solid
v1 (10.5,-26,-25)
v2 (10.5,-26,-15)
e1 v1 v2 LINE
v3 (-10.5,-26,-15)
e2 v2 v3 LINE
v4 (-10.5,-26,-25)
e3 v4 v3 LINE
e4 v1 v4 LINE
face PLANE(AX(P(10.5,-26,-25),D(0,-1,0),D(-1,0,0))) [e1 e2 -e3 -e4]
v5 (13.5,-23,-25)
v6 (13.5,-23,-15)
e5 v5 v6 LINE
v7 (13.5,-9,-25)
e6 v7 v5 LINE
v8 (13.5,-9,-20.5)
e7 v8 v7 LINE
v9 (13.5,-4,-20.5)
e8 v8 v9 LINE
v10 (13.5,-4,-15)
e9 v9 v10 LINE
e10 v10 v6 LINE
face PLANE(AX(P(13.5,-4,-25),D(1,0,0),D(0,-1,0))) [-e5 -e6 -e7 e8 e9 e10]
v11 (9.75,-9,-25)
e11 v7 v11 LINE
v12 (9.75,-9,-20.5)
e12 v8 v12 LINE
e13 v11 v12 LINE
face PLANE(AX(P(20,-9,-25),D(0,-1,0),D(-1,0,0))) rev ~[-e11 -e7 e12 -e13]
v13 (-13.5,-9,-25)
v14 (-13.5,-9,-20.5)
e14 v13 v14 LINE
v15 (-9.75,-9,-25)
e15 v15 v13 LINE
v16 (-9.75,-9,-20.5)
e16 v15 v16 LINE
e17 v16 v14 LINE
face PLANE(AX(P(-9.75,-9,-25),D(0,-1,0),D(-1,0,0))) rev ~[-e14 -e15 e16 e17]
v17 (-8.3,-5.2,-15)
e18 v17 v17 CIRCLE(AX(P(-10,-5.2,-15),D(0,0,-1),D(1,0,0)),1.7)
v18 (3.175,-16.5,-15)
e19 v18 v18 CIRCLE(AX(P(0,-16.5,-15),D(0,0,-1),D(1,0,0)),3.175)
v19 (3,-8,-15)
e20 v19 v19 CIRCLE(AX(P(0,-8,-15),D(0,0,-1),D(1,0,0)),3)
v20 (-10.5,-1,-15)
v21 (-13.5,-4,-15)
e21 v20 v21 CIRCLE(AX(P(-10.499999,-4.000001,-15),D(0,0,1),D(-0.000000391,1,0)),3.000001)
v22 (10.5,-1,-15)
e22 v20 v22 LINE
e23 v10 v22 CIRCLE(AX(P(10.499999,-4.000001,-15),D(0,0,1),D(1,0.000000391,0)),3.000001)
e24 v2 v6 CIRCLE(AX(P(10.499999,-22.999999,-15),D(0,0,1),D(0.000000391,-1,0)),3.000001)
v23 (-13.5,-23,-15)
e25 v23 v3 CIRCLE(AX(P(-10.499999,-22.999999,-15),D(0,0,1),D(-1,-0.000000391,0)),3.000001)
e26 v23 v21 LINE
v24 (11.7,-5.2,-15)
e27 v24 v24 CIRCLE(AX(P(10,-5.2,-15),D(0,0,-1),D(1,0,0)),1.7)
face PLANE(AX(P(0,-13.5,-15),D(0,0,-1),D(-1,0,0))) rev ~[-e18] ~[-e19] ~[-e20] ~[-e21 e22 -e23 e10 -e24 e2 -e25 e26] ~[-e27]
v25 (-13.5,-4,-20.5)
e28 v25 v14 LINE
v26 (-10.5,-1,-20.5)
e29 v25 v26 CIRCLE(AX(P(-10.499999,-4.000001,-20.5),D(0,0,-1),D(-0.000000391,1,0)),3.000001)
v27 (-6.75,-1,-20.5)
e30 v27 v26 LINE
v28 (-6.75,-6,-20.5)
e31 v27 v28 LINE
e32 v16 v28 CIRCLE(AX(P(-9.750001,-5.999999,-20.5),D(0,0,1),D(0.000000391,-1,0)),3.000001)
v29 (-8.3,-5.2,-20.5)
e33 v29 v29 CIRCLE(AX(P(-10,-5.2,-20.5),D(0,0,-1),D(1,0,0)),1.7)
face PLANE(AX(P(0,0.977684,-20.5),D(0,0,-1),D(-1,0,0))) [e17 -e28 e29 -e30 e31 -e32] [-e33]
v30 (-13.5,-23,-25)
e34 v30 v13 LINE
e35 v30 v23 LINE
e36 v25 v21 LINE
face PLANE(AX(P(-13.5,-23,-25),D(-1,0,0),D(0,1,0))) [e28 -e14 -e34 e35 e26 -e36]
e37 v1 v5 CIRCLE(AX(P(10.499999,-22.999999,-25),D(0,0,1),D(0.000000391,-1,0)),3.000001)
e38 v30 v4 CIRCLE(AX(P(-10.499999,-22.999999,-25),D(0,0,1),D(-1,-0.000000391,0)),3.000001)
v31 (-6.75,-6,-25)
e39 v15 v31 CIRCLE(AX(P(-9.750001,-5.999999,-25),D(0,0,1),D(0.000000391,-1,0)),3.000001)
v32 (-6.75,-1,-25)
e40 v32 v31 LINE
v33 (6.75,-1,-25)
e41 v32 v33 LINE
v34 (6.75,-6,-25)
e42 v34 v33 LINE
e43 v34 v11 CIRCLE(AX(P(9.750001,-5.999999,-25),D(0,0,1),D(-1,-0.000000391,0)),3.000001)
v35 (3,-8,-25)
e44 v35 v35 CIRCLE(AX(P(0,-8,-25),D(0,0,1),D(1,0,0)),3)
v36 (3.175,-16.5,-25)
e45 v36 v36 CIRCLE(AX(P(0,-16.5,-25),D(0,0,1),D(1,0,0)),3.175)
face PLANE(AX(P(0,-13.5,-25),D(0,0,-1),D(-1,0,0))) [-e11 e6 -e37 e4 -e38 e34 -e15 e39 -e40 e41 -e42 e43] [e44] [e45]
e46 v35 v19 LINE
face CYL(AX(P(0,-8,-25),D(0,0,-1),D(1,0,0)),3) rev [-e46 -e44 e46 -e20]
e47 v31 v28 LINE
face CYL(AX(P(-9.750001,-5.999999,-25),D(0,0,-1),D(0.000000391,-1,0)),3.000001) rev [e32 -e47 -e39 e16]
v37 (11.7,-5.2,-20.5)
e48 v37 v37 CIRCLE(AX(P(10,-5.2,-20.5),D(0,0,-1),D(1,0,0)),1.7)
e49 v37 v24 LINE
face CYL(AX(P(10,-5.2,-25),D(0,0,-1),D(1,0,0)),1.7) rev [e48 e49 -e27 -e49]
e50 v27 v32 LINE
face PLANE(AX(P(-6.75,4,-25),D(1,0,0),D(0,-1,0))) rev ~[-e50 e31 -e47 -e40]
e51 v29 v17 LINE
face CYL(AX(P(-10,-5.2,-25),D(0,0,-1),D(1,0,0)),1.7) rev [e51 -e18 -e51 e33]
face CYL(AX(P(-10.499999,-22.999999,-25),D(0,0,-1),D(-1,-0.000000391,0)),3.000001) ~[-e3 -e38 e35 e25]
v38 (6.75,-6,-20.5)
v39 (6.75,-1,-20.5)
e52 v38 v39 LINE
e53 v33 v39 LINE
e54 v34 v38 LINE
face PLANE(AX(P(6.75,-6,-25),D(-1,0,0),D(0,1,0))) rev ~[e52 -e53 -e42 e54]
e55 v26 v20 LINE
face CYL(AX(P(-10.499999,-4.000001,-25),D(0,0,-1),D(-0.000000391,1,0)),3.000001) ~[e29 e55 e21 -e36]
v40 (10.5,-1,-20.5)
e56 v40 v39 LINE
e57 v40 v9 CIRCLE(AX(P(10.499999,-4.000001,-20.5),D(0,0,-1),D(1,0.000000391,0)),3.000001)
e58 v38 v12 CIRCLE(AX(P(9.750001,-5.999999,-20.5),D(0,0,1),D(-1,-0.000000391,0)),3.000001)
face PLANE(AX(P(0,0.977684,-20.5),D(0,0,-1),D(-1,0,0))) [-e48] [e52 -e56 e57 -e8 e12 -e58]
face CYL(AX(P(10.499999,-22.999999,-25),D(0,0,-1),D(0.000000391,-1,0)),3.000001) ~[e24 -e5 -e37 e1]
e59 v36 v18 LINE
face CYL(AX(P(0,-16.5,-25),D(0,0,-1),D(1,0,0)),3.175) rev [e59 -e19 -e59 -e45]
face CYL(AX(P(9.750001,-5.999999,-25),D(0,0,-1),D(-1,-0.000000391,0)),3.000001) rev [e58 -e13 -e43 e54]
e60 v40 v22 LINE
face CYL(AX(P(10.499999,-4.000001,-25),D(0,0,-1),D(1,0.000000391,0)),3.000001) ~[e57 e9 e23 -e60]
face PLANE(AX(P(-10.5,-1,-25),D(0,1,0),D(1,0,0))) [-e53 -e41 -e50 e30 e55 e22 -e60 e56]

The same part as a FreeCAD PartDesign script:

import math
import FreeCAD as App
import Part
import Sketcher

doc = App.newDocument("Part")
body = doc.addObject("PartDesign::Body", "Body")

# Sketch on XY plane
sketch1 = body.newObject("Sketcher::SketchObject", "Sketch")
sketch1.AttachmentSupport = (doc.getObject("XY_Plane"), [""])
sketch1.MapMode = "FlatFace"
sketch1.addGeometry([
    Part.LineSegment(App.Vector(10.5, 0, 0), App.Vector(-10.5, 0, 0)),  # 0
    Part.ArcOfCircle(Part.Circle(App.Vector(-10.5, -3, 0), App.Vector(0, 0, 1), 3), math.radians(90), math.radians(180)),  # 1
    Part.LineSegment(App.Vector(-13.5, -3, 0), App.Vector(-13.5, -22, 0)),  # 2
    Part.ArcOfCircle(Part.Circle(App.Vector(-10.5, -22, 0), App.Vector(0, 0, 1), 3), math.radians(-180), math.radians(-90)),  # 3
    Part.LineSegment(App.Vector(-10.5, -25, 0), App.Vector(10.5, -25, 0)),  # 4
    Part.ArcOfCircle(Part.Circle(App.Vector(10.5, -22, 0), App.Vector(0, 0, 1), 3), math.radians(-90), math.radians(0)),  # 5
    Part.LineSegment(App.Vector(13.5, -22, 0), App.Vector(13.5, -3, 0)),  # 6
    Part.ArcOfCircle(Part.Circle(App.Vector(10.5, -3, 0), App.Vector(0, 0, 1), 3), math.radians(0), math.radians(90)),  # 7
], False)
sketch1.addConstraint([
    Sketcher.Constraint("Tangent", 0, 2, 1, 1),
    Sketcher.Constraint("Tangent", 1, 2, 2, 1),
    Sketcher.Constraint("Tangent", 2, 2, 3, 1),
    Sketcher.Constraint("Tangent", 3, 2, 4, 1),
    Sketcher.Constraint("Tangent", 4, 2, 5, 1),
    Sketcher.Constraint("Tangent", 5, 2, 6, 1),
    Sketcher.Constraint("Tangent", 6, 2, 7, 1),
    Sketcher.Constraint("Tangent", 7, 2, 0, 1),
    Sketcher.Constraint("Horizontal", 0),
    Sketcher.Constraint("Vertical", 2),
    Sketcher.Constraint("Horizontal", 4),
    Sketcher.Constraint("Vertical", 6),
    Sketcher.Constraint("Equal", 1, 3),
    Sketcher.Constraint("Equal", 3, 5),
    Sketcher.Constraint("Equal", 5, 7),
    Sketcher.Constraint("Symmetric", 0, 2, 7, 2, -1, 1),
    Sketcher.Constraint("Radius", 1, 3.000001),
    Sketcher.Constraint("DistanceX", 0, 2, 0, 1, 21.0),
    Sketcher.Constraint("DistanceY", 2, 2, 2, 1, 19.0),
])
pad1 = body.newObject("PartDesign::Pad", "Pad")
pad1.Profile = sketch1
pad1.Length = 10

# Sketch on XY plane
sketch2 = body.newObject("Sketcher::SketchObject", "Sketch001")
sketch2.AttachmentSupport = (doc.getObject("XY_Plane"), [""])
sketch2.MapMode = "FlatFace"
sketch2.addGeometry([
    Part.Circle(App.Vector(0, -7, 0), App.Vector(0, 0, 1), 3),
    Part.Circle(App.Vector(0, -15.5, 0), App.Vector(0, 0, 1), 3.2),
], False)
sketch2.addConstraint([
    Sketcher.Constraint("PointOnObject", 0, 3, -2),
    Sketcher.Constraint("PointOnObject", 1, 3, -2),
    Sketcher.Constraint("Diameter", 0, 6.0),
    Sketcher.Constraint("Diameter", 1, 6.35),
    Sketcher.Constraint("DistanceY", 0, 3, -1, 1, 7.0),
    Sketcher.Constraint("DistanceY", 1, 3, -1, 1, 15.5),
])
pocket1 = body.newObject("PartDesign::Pocket", "Pocket")
pocket1.Profile = sketch2
pocket1.Type = "ThroughAll"
pocket1.Reversed = True

# Sketch on XY plane
sketch3 = body.newObject("Sketcher::SketchObject", "Sketch002")
sketch3.AttachmentSupport = (doc.getObject("XY_Plane"), [""])
sketch3.MapMode = "FlatFace"
sketch3.addGeometry([
    Part.Circle(App.Vector(-10, -4.2, 0), App.Vector(0, 0, 1), 1.7),
    Part.Circle(App.Vector(10, -4.2, 0), App.Vector(0, 0, 1), 1.7),
], False)
sketch3.addConstraint([
    Sketcher.Constraint("Equal", 0, 1),
    Sketcher.Constraint("Symmetric", 0, 3, 1, 3, -2),
    Sketcher.Constraint("Diameter", 0, 3.4),
    Sketcher.Constraint("DistanceX", 0, 3, -1, 1, 10.0),
    Sketcher.Constraint("DistanceY", 0, 3, -1, 1, 4.2),
])
pocket2 = body.newObject("PartDesign::Pocket", "Pocket001")
pocket2.Profile = sketch3
pocket2.Type = "ThroughAll"
pocket2.Reversed = True

# Sketch on XY plane
sketch4 = body.newObject("Sketcher::SketchObject", "Sketch003")
sketch4.AttachmentSupport = (doc.getObject("XY_Plane"), [""])
sketch4.MapMode = "FlatFace"
sketch4.addGeometry([
    Part.LineSegment(App.Vector(-6.8, -5, 0), App.Vector(-6.8, 5, 0)),  # 0
    Part.LineSegment(App.Vector(-6.8, 5, 0), App.Vector(6.8, 5, 0)),  # 1
    Part.LineSegment(App.Vector(6.8, 5, 0), App.Vector(6.8, -5, 0)),  # 2
    Part.ArcOfCircle(Part.Circle(App.Vector(9.8, -5, 0), App.Vector(0, 0, 1), 3), math.radians(-180), math.radians(-90)),  # 3
    Part.LineSegment(App.Vector(9.8, -8, 0), App.Vector(20, -8, 0)),  # 4
    Part.LineSegment(App.Vector(20, -8, 0), App.Vector(20, 10, 0)),  # 5
    Part.LineSegment(App.Vector(20, 10, 0), App.Vector(-20, 10, 0)),  # 6
    Part.LineSegment(App.Vector(-20, 10, 0), App.Vector(-20, -8, 0)),  # 7
    Part.LineSegment(App.Vector(-20, -8, 0), App.Vector(-9.8, -8, 0)),  # 8
    Part.ArcOfCircle(Part.Circle(App.Vector(-9.8, -5, 0), App.Vector(0, 0, 1), 3), math.radians(-90), math.radians(0)),  # 9
], False)
sketch4.addConstraint([
    Sketcher.Constraint("Coincident", 0, 2, 1, 1),
    Sketcher.Constraint("Coincident", 1, 2, 2, 1),
    Sketcher.Constraint("Tangent", 2, 2, 3, 1),
    Sketcher.Constraint("Tangent", 3, 2, 4, 1),
    Sketcher.Constraint("Coincident", 4, 2, 5, 1),
    Sketcher.Constraint("Coincident", 5, 2, 6, 1),
    Sketcher.Constraint("Coincident", 6, 2, 7, 1),
    Sketcher.Constraint("Coincident", 7, 2, 8, 1),
    Sketcher.Constraint("Tangent", 8, 2, 9, 1),
    Sketcher.Constraint("Tangent", 9, 2, 0, 1),
    Sketcher.Constraint("Vertical", 0),
    Sketcher.Constraint("Horizontal", 1),
    Sketcher.Constraint("Vertical", 2),
    Sketcher.Constraint("Horizontal", 4),
    Sketcher.Constraint("Vertical", 5),
    Sketcher.Constraint("Horizontal", 6),
    Sketcher.Constraint("Vertical", 7),
    Sketcher.Constraint("Horizontal", 8),
    Sketcher.Constraint("Equal", 3, 9),
    Sketcher.Constraint("Symmetric", 0, 2, 2, 2, -1, 1),
    Sketcher.Constraint("Symmetric", 4, 2, 7, 2, -2),
    Sketcher.Constraint("Radius", 3, 3.000001),
    Sketcher.Constraint("DistanceX", 6, 2, 6, 1, 40.0),
    Sketcher.Constraint("DistanceY", 0, 1, 0, 2, 10.0),
    Sketcher.Constraint("DistanceY", 5, 1, 5, 2, 18.0),
    Sketcher.Constraint("DistanceX", 1, 1, 1, 2, 13.5),
])
pocket3 = body.newObject("PartDesign::Pocket", "Pocket002")
pocket3.Profile = sketch4
pocket3.Length = 4.5
pocket3.Reversed = True
body2 = doc.addObject("PartDesign::Body", "Body001")
doc.recompute()

body.Placement = App.Placement(App.Vector(0, -1, -25), App.Rotation(App.Vector(0, 0, 1), 0))
boolean = body2.newObject("PartDesign::Boolean", "Boolean")
boolean.Type = "Fuse"
boolean.addObjects([body])

doc.recompute()
